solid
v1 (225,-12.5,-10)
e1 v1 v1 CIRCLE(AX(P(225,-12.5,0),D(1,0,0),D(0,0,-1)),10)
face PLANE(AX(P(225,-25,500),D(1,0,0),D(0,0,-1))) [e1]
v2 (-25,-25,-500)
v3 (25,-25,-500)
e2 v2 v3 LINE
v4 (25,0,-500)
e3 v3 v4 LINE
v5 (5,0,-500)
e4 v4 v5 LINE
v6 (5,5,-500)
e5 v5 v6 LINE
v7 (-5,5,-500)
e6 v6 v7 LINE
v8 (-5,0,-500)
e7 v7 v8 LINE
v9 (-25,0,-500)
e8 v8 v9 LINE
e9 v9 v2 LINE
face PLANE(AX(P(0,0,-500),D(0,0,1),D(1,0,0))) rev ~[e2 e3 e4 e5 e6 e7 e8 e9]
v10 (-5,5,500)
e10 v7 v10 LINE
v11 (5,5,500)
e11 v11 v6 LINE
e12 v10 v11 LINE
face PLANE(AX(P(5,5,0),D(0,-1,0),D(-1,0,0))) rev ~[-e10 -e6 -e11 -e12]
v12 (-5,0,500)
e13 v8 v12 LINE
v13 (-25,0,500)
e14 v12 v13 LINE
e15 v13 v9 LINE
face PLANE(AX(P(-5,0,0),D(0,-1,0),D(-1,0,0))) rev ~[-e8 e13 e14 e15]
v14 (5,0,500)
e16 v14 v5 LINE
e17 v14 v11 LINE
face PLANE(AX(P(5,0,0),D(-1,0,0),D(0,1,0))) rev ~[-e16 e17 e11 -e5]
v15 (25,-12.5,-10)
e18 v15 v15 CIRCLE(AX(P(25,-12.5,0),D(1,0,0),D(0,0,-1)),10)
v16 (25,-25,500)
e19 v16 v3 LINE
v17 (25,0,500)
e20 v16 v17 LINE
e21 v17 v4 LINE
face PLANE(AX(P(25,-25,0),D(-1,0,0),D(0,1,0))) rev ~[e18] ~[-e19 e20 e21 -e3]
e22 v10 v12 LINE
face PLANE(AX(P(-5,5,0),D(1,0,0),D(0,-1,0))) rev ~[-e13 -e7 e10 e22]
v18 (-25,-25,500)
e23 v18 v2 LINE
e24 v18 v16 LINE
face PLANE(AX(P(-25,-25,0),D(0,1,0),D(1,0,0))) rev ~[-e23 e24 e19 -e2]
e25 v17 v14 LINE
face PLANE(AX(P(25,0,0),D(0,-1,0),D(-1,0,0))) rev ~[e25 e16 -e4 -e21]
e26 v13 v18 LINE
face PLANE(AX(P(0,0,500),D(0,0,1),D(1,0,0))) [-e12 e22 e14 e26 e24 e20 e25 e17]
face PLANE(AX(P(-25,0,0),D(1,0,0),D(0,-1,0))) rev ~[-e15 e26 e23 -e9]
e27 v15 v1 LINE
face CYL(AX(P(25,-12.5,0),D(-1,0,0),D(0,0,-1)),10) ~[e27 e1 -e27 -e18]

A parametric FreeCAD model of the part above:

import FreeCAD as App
import Part
import Sketcher


def add_polygon(sketch, points):
    """Adds a closed chain of lines whose ends are joined by coincident constraints."""
    first, n = sketch.GeometryCount, len(points)
    for a, b in zip(points, points[1:] + points[:1]):
        sketch.addGeometry(Part.LineSegment(App.Vector(*a, 0), App.Vector(*b, 0)), False)
    for i in range(n):
        sketch.addConstraint(Sketcher.Constraint("Coincident", first + i, 2, first + (i + 1) % n, 1))

doc = App.newDocument("Part")
params = doc.addObject("Spreadsheet::Sheet", "Params")
for row, (alias, value) in enumerate([
    ("sketch1_width", "20 mm"),
    ("sketch1_width2", "50 mm"),
    ("sketch1_height", "5 mm"),
    ("sketch1_height2", "25 mm"),
    ("pad1_length", "1000 mm"),
    ("sketch2_diameter", "20 mm"),
    ("pad2_length", "200 mm"),
], start=1):
    params.set(f"A{row}", alias)
    params.set(f"B{row}", "=" + value)
    params.setAlias(f"B{row}", alias)

body = doc.addObject("PartDesign::Body", "Body")

# Sketch on XY plane
sketch1 = body.newObject("Sketcher::SketchObject", "Sketch")
sketch1.AttachmentSupport = (doc.getObject("XY_Plane"), [""])
sketch1.MapMode = "FlatFace"
add_polygon(sketch1, [(5, 5), (-5, 5), (-5, 0), (-25, 0), (-25, -25), (25, -25), (25, 0), (5, 0)])  # lines 0-7
sketch1.addConstraint([
    Sketcher.Constraint("Horizontal", 0),
    Sketcher.Constraint("Vertical", 1),
    Sketcher.Constraint("Horizontal", 2),
    Sketcher.Constraint("Vertical", 3),
    Sketcher.Constraint("Horizontal", 4),
    Sketcher.Constraint("Vertical", 5),
    Sketcher.Constraint("Horizontal", 6),
    Sketcher.Constraint("Vertical", 7),
    Sketcher.Constraint("Symmetric", 2, 2, 5, 2, -1, 1),
    Sketcher.Constraint("Symmetric", 1, 2, 6, 2, -2),
    Sketcher.Constraint("DistanceX", 2, 2, 2, 1, 20.0),
    Sketcher.Constraint("DistanceX", 4, 1, 4, 2, 50.0),
    Sketcher.Constraint("DistanceY", 1, 2, 1, 1, 5.0),
    Sketcher.Constraint("DistanceY", 3, 2, 3, 1, 25.0),
])
sketch1.setExpression("Constraints[18]", "Params.sketch1_width")
sketch1.setExpression("Constraints[19]", "Params.sketch1_width2")
sketch1.setExpression("Constraints[20]", "Params.sketch1_height")
sketch1.setExpression("Constraints[21]", "Params.sketch1_height2")
pad1 = body.newObject("PartDesign::Pad", "Pad")
pad1.Profile = sketch1
pad1.setExpression("Length", "Params.pad1_length")
pad1.Midplane = True

# Sketch on YZ plane
sketch2 = body.newObject("Sketcher::SketchObject", "Sketch001")
sketch2.AttachmentSupport = (doc.getObject("YZ_Plane"), [""])
sketch2.MapMode = "FlatFace"
sketch2.AttachmentOffset = App.Placement(App.Vector(0, 0, 25), App.Rotation())
sketch2.addGeometry(Part.Circle(App.Vector(-12.5, 0, 0), App.Vector(0, 0, 1), 10), False)
sketch2.addConstraint([
    Sketcher.Constraint("PointOnObject", 0, 3, -1),
    Sketcher.Constraint("Diameter", 0, 20.0),
    Sketcher.Constraint("DistanceX", 0, 3, -1, 1, 12.5),
])
sketch2.setExpression("Constraints[1]", "Params.sketch2_diameter")
pad2 = body.newObject("PartDesign::Pad", "Pad001")
pad2.Profile = sketch2
pad2.setExpression("Length", "Params.pad2_length")

doc.recompute()
